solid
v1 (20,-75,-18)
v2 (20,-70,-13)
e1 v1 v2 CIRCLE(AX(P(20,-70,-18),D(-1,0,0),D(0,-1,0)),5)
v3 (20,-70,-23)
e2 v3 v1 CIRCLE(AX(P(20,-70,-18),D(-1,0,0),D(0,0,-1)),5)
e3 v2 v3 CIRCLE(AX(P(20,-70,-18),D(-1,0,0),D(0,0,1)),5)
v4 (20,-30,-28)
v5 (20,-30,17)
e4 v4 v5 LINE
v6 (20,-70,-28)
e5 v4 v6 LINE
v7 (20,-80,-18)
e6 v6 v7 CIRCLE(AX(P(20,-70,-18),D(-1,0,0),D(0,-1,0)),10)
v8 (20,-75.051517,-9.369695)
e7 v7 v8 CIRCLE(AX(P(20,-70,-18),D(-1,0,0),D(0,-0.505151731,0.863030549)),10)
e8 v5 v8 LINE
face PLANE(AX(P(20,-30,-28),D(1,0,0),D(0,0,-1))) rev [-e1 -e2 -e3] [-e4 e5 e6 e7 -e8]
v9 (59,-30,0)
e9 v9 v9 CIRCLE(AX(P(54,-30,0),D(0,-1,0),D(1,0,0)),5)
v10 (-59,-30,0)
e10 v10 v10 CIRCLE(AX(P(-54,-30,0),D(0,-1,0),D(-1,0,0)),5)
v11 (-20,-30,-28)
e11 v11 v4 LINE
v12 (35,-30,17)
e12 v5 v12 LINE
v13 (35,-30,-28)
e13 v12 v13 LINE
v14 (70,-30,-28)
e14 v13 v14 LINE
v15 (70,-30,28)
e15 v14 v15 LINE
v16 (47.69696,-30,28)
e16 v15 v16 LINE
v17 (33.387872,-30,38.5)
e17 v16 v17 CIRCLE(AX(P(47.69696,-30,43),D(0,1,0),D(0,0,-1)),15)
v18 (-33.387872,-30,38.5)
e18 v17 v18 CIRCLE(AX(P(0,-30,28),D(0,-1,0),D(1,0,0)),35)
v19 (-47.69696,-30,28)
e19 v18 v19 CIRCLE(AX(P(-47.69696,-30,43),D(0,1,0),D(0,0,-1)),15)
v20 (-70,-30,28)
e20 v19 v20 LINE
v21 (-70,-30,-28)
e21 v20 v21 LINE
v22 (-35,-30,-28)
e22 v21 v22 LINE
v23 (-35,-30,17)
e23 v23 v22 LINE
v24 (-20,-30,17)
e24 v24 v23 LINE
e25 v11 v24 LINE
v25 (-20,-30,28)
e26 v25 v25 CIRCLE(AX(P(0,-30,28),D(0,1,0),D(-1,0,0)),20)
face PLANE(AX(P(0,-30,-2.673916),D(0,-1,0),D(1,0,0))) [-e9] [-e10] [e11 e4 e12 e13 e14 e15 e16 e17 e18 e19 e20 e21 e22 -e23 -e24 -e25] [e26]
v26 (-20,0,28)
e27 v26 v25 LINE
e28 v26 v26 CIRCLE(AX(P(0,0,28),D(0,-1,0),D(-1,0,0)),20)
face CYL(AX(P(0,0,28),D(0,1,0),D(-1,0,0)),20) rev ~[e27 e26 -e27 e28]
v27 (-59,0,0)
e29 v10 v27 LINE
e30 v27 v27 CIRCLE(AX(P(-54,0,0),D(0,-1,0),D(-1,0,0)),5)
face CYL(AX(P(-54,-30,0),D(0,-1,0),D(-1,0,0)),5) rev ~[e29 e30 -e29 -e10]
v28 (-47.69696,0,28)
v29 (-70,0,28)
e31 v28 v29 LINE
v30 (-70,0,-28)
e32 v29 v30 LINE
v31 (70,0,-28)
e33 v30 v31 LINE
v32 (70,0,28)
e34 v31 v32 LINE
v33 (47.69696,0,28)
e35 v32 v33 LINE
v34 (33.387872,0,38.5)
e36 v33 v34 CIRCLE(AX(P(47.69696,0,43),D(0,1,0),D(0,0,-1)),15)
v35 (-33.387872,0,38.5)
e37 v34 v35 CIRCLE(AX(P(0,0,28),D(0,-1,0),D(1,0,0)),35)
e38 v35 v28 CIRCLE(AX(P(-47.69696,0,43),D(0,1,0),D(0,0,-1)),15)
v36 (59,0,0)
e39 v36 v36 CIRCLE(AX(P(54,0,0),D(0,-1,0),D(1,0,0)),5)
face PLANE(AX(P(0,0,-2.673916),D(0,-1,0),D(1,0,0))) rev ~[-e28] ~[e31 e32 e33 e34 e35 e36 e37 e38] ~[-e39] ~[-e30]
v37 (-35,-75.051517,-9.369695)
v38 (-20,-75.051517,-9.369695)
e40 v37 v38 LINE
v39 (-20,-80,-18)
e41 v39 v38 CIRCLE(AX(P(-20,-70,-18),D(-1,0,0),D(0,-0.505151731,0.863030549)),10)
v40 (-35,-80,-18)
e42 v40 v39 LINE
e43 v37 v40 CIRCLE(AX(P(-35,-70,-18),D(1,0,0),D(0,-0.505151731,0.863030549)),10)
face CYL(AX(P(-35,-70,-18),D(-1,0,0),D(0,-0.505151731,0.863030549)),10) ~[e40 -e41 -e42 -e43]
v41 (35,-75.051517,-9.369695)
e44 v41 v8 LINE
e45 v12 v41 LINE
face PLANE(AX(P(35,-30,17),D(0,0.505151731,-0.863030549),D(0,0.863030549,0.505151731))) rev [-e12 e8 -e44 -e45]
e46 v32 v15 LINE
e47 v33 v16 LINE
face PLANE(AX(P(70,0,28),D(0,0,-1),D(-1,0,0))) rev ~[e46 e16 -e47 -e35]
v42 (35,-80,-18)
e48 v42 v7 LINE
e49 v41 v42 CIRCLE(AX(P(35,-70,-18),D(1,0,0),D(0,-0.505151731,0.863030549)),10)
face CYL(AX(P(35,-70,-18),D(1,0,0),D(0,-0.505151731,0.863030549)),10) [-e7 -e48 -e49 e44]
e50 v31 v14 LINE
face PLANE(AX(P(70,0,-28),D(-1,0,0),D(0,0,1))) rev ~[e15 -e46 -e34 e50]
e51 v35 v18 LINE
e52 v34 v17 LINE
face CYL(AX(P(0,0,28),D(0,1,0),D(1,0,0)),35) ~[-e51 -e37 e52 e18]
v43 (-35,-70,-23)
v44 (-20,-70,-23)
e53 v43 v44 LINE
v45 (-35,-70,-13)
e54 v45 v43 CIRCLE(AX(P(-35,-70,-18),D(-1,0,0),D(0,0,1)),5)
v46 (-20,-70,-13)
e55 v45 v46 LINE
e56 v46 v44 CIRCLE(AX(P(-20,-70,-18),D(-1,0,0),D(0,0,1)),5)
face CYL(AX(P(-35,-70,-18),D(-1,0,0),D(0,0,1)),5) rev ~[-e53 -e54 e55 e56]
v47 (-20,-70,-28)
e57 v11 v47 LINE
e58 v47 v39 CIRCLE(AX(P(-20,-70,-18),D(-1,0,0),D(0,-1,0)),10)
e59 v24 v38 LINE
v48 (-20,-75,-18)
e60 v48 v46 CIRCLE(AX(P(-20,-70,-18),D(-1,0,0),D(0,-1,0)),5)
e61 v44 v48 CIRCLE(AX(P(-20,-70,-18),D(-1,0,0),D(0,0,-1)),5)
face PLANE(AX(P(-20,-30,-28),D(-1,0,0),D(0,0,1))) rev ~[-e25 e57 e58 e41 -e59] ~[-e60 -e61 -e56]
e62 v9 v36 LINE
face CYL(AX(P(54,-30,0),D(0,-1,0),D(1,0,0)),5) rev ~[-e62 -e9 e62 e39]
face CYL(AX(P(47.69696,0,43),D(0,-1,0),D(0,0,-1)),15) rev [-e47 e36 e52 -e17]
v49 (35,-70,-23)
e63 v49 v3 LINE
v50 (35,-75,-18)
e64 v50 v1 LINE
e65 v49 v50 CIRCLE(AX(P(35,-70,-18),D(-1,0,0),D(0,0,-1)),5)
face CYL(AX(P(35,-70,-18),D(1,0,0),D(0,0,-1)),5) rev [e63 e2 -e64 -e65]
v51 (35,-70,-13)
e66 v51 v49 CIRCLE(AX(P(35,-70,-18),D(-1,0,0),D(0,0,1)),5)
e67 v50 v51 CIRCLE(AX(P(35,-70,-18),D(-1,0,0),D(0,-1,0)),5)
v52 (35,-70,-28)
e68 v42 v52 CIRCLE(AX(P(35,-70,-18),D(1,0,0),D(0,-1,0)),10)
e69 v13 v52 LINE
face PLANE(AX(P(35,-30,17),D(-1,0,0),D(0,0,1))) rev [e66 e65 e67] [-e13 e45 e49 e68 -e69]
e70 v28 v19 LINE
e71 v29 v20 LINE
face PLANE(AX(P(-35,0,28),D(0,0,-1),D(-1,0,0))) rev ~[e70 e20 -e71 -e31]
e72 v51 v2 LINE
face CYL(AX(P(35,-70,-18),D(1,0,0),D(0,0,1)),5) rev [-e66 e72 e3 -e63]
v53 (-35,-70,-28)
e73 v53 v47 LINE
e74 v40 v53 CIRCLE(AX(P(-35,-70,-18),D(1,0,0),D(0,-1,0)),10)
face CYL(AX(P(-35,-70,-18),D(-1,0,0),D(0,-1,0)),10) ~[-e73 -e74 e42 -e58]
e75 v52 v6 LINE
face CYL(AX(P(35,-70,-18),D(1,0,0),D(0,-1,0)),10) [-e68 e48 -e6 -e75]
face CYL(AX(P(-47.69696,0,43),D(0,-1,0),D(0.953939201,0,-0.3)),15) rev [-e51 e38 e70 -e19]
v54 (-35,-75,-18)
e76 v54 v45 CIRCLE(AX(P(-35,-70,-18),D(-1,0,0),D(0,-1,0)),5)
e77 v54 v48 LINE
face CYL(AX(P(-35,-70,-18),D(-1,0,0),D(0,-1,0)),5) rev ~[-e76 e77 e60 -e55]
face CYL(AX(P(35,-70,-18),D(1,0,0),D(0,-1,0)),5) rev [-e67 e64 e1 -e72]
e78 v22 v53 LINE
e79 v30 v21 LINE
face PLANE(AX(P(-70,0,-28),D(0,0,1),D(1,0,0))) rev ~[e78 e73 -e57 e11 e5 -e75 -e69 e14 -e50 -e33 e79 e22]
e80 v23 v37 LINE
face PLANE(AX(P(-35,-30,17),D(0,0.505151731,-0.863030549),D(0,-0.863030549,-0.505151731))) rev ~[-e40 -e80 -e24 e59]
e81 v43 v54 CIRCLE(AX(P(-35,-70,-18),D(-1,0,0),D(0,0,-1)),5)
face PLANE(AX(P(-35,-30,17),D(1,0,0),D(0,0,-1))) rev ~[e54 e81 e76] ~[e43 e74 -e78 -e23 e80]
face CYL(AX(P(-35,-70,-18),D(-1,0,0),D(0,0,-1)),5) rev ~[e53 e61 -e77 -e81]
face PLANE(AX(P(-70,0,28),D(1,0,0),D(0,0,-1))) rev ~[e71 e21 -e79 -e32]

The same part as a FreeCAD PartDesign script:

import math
import FreeCAD as App
import Part
import Sketcher

V = App.Vector
Q = App.Units.Quantity


def edges_at(feature, points):
    """Names of the edges that pass closest to the given points."""
    edges = feature.Shape.Edges
    near = lambda p: min(range(len(edges)), key=lambda i: edges[i].distToShape(Part.Vertex(*p))[0])
    return sorted({f"Edge{near(p) + 1}" for p in points})


def add_polygon(sketch, points):
    """Adds a closed chain of lines whose ends are joined by coincident constraints."""
    first, n = sketch.GeometryCount, len(points)
    for a, b in zip(points, points[1:] + points[:1]):
        sketch.addGeometry(Part.LineSegment(App.Vector(*a, 0), App.Vector(*b, 0)), False)
    for i in range(n):
        sketch.addConstraint(Sketcher.Constraint("Coincident", first + i, 2, first + (i + 1) % n, 1))

doc = App.newDocument("Part")
params = doc.addObject("Spreadsheet::Sheet", "Params")
for row, (alias, value) in enumerate([
    ("sketch1_diameter", "40 mm"),
    ("sketch1_radius", "35 mm"),
    ("sketch1_width", "35 mm"),
    ("sketch1_height", "56 mm"),
    ("pad1_length", "30 mm"),
    ("fillet_radius", "15 mm"),
    ("sketch2_diameter", "10 mm"),
    ("pocket1_length", "72 mm"),
    ("sketch3_width", "15 mm"),
    ("sketch3_height", "45 mm"),
    ("pad2_length", "60 mm"),
    ("sketch4_radius", "10 mm"),
    ("sketch4_radius2", "5 mm"),
    ("sketch4_width", "60 mm"),
    ("sketch4_width2", "20 mm"),
    ("sketch4_height", "45 mm"),
    ("pocket2_length", "51.3 mm"),
], start=1):
    params.set(f"A{row}", alias)
    params.set(f"B{row}", "=" + value)
    params.setAlias(f"B{row}", alias)

body = doc.addObject("PartDesign::Body", "Body")

# Sketch on XZ plane
sketch1 = body.newObject("Sketcher::SketchObject", "Sketch")
sketch1.AttachmentSupport = (doc.getObject("XZ_Plane"), [""])
sketch1.MapMode = "FlatFace"
sketch1.addGeometry([
    Part.LineSegment(V(70, -28, 0), V(70, 28, 0)),  # 0
    Part.LineSegment(V(70, 28, 0), V(35, 28, 0)),  # 1
    Part.ArcOfCircle(Part.Circle(V(0, 28, 0), V(0, 0, 1), 35), math.radians(0), math.radians(180)),  # 2
    Part.LineSegment(V(-35, 28, 0), V(-70, 28, 0)),  # 3
    Part.LineSegment(V(-70, 28, 0), V(-70, -28, 0)),  # 4
    Part.LineSegment(V(-70, -28, 0), V(70, -28, 0)),  # 5
    Part.Circle(V(0, 28, 0), V(0, 0, 1), 20),  # 6
], False)
sketch1.addConstraint([
    Sketcher.Constraint("Coincident", 0, 2, 1, 1),
    Sketcher.Constraint("Coincident", 1, 2, 2, 1),
    Sketcher.Constraint("Coincident", 2, 2, 3, 1),
    Sketcher.Constraint("Coincident", 3, 2, 4, 1),
    Sketcher.Constraint("Coincident", 4, 2, 5, 1),
    Sketcher.Constraint("Coincident", 5, 2, 0, 1),
    Sketcher.Constraint("Vertical", 0),
    Sketcher.Constraint("Horizontal", 1),
    Sketcher.Constraint("Horizontal", 3),
    Sketcher.Constraint("Vertical", 4),
    Sketcher.Constraint("Horizontal", 5),
    Sketcher.Constraint("Coincident", 6, 3, 2, 3),
    Sketcher.Constraint("Symmetric", 0, 2, 4, 2, -1, 1),
    Sketcher.Constraint("Symmetric", 1, 2, 2, 2, -2),
    Sketcher.Constraint("Horizontal", 6, 3, 0, 2),
    Sketcher.Constraint("Diameter", 6, Q("40 mm")),
    Sketcher.Constraint("Radius", 2, Q("35 mm")),
    Sketcher.Constraint("DistanceX", 1, 2, 1, 1, Q("35 mm")),
    Sketcher.Constraint("DistanceY", 0, 1, 0, 2, Q("56 mm")),
])
sketch1.setExpression("Constraints[15]", "Params.sketch1_diameter")
sketch1.setExpression("Constraints[16]", "Params.sketch1_radius")
sketch1.setExpression("Constraints[17]", "Params.sketch1_width")
sketch1.setExpression("Constraints[18]", "Params.sketch1_height")
pad1 = body.newObject("PartDesign::Pad", "Pad")
pad1.Profile = sketch1
pad1.setExpression("Length", "Params.pad1_length")
doc.recompute()

fillet = body.newObject("PartDesign::Fillet", "Fillet")
fillet.Base = (pad1, edges_at(pad1, [(-35, -15, 28), (35, -15, 28)]))
fillet.setExpression("Radius", "Params.fillet_radius")

# Sketch on XZ plane
sketch2 = body.newObject("Sketcher::SketchObject", "Sketch001")
sketch2.AttachmentSupport = (doc.getObject("XZ_Plane"), [""])
sketch2.MapMode = "FlatFace"
sketch2.AttachmentOffset = App.Placement(V(0, 0, 30), App.Rotation())
sketch2.addGeometry([
    Part.Circle(V(-54, 0, 0), V(0, 0, 1), 5),
    Part.Circle(V(54, 0, 0), V(0, 0, 1), 5),
], False)
sketch2.addConstraint([
    Sketcher.Constraint("Equal", 0, 1),
    Sketcher.Constraint("Symmetric", 0, 3, 1, 3, -1, 1),
    Sketcher.Constraint("PointOnObject", 0, 3, -1),
    Sketcher.Constraint("Diameter", 0, Q("10 mm")),
    Sketcher.Constraint("DistanceX", 0, 3, -1, 1, Q("54 mm")),
])
sketch2.setExpression("Constraints[3]", "Params.sketch2_diameter")
pocket1 = body.newObject("PartDesign::Pocket", "Pocket")
pocket1.Profile = sketch2
pocket1.setExpression("Length", "Params.pocket1_length")

# Sketch on XZ plane
sketch3 = body.newObject("Sketcher::SketchObject", "Sketch002")
sketch3.AttachmentSupport = (doc.getObject("XZ_Plane"), [""])
sketch3.MapMode = "FlatFace"
sketch3.AttachmentOffset = App.Placement(V(0, 0, 30), App.Rotation())
add_polygon(sketch3, [(-35, 17), (-35, -28), (-20, -28), (-20, 17)])  # lines 0-3
sketch3.addConstraint([
    Sketcher.Constraint("Vertical", 0),
    Sketcher.Constraint("Horizontal", 1),
    Sketcher.Constraint("Vertical", 2),
    Sketcher.Constraint("Horizontal", 3),
    Sketcher.Constraint("DistanceX", 1, 1, 1, 2, Q("15 mm")),
    Sketcher.Constraint("DistanceY", 0, 2, 0, 1, Q("45 mm")),
    Sketcher.Constraint("DistanceX", 0, 2, -1, 1, Q("35 mm")),
    Sketcher.Constraint("DistanceY", 0, 2, -1, 1, Q("28 mm")),
])
sketch3.setExpression("Constraints[8]", "Params.sketch3_width")
sketch3.setExpression("Constraints[9]", "Params.sketch3_height")
pad2 = body.newObject("PartDesign::Pad", "Pad001")
pad2.Profile = sketch3
pad2.setExpression("Length", "Params.pad2_length")

# Sketch on YZ plane
sketch4 = body.newObject("Sketcher::SketchObject", "Sketch003")
sketch4.AttachmentSupport = (doc.getObject("YZ_Plane"), [""])
sketch4.MapMode = "FlatFace"
sketch4.AttachmentOffset = App.Placement(V(0, 0, -35), App.Rotation())
sketch4.addGeometry([
    Part.LineSegment(V(-90, 17, 0), V(-30, 17, 0)),  # 0
    Part.LineSegment(V(-30, 17, 0), V(-75, -9, 0)),  # 1
    Part.ArcOfCircle(Part.Circle(V(-70, -18, 0), V(0, 0, 1), 10), math.radians(120), math.radians(180)),  # 2
    Part.ArcOfCircle(Part.Circle(V(-70, -18, 0), V(0, 0, 1), 10), math.radians(180), math.radians(270)),  # 3
    Part.LineSegment(V(-70, -28, 0), V(-90, -28, 0)),  # 4
    Part.LineSegment(V(-90, -28, 0), V(-90, 17, 0)),  # 5
    Part.ArcOfCircle(Part.Circle(V(-70, -18, 0), V(0, 0, 1), 5), math.radians(-90), math.radians(90)),  # 6
    Part.ArcOfCircle(Part.Circle(V(-70, -18, 0), V(0, 0, 1), 5), math.radians(180), math.radians(270)),  # 7
    Part.ArcOfCircle(Part.Circle(V(-70, -18, 0), V(0, 0, 1), 5), math.radians(90), math.radians(180)),  # 8
], False)
sketch4.addConstraint([
    Sketcher.Constraint("Coincident", 0, 2, 1, 1),
    Sketcher.Constraint("Tangent", 1, 2, 2, 1),
    Sketcher.Constraint("Tangent", 2, 2, 3, 1),
    Sketcher.Constraint("Tangent", 3, 2, 4, 1),
    Sketcher.Constraint("Coincident", 4, 2, 5, 1),
    Sketcher.Constraint("Coincident", 5, 2, 0, 1),
    Sketcher.Constraint("Tangent", 6, 1, 7, 2),
    Sketcher.Constraint("Tangent", 7, 1, 8, 2),
    Sketcher.Constraint("Tangent", 8, 1, 6, 2),
    Sketcher.Constraint("Horizontal", 0),
    Sketcher.Constraint("Horizontal", 4),
    Sketcher.Constraint("Vertical", 5),
    Sketcher.Constraint("Coincident", 6, 3, 2, 3),
    Sketcher.Constraint("Equal", 2, 3),
    Sketcher.Constraint("Horizontal", 8, 3, 2, 2),
    Sketcher.Constraint("Horizontal", 2, 2, 7, 1),
    Sketcher.Constraint("Vertical", 3, 2, 6, 1),
    Sketcher.Constraint("Vertical", 6, 1, 8, 1),
    Sketcher.Constraint("Radius", 2, Q("10 mm")),
    Sketcher.Constraint("Radius", 6, Q("5 mm")),
    Sketcher.Constraint("DistanceX", 0, 1, 0, 2, Q("60 mm")),
    Sketcher.Constraint("DistanceX", 4, 2, 4, 1, Q("20 mm")),
    Sketcher.Constraint("DistanceY", 5, 1, 5, 2, Q("45 mm")),
    Sketcher.Constraint("DistanceX", 2, 3, -1, 1, Q("70 mm")),
    Sketcher.Constraint("DistanceY", 2, 3, -1, 1, Q("18 mm")),
])
sketch4.setExpression("Constraints[18]", "Params.sketch4_radius")
sketch4.setExpression("Constraints[19]", "Params.sketch4_radius2")
sketch4.setExpression("Constraints[20]", "Params.sketch4_width")
sketch4.setExpression("Constraints[21]", "Params.sketch4_width2")
sketch4.setExpression("Constraints[22]", "Params.sketch4_height")
pocket2 = body.newObject("PartDesign::Pocket", "Pocket001")
pocket2.Profile = sketch4
pocket2.setExpression("Length", "Params.pocket2_length")
pocket2.Reversed = True
body2 = doc.addObject("PartDesign::Body", "Body001")
doc.recompute()

body2.BaseFeature = body
doc.recompute()

mirroring = doc.addObject("Part::Mirroring", "Mirroring")
mirroring.Source = body
mirroring.Base = V(0, 0, 0)
mirroring.Normal = V(1, 0, 0)
body3 = doc.addObject("PartDesign::Body", "Body002")
body3.BaseFeature = mirroring
boolean = body2.newObject("PartDesign::Boolean", "Boolean")
boolean.Type = "Fuse"
boolean.addObjects([body3])
doc.recompute()
mirroring.Visibility = False

doc.recompute()
